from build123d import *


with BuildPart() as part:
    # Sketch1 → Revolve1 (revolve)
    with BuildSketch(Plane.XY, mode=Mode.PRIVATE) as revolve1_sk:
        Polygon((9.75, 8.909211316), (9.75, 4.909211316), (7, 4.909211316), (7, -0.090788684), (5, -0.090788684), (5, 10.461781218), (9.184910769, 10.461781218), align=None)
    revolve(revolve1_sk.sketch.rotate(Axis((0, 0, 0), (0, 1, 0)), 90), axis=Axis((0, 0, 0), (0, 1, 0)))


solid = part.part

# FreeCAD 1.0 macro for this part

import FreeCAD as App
import Part
import Sketcher
from FreeCAD import Vector
Q = App.Units.Quantity

doc = App.newDocument("Part")
body = doc.addObject("PartDesign::Body", "Body")

# Sketch on XY plane
sketch1 = doc.addObject("Sketcher::SketchObject", "Sketch")
body.addObject(sketch1)
sketch1.AttachmentSupport = (doc.XY_Plane, [""])
sketch1.MapMode = "FlatFace"
sketch1.addGeometry([
    Part.LineSegment(Vector(9.8, 4.9, 0), Vector(9.8, 8.9, 0)),  # 0
    Part.LineSegment(Vector(9.8, 8.9, 0), Vector(9.2, 10.5, 0)),  # 1
    Part.LineSegment(Vector(9.2, 10.5, 0), Vector(5, 10.5, 0)),  # 2
    Part.LineSegment(Vector(5, 10.5, 0), Vector(5, -0.1, 0)),  # 3
    Part.LineSegment(Vector(5, -0.1, 0), Vector(7, -0.1, 0)),  # 4
    Part.LineSegment(Vector(7, -0.1, 0), Vector(7, 4.9, 0)),  # 5
    Part.LineSegment(Vector(7, 4.9, 0), Vector(9.8, 4.9, 0)),  # 6
], False)
sketch1.addConstraint([
    Sketcher.Constraint("Coincident", 0, 2, 1, 1),
    Sketcher.Constraint("Coincident", 1, 2, 2, 1),
    Sketcher.Constraint("Coincident", 2, 2, 3, 1),
    Sketcher.Constraint("Coincident", 3, 2, 4, 1),
    Sketcher.Constraint("Coincident", 4, 2, 5, 1),
    Sketcher.Constraint("Coincident", 5, 2, 6, 1),
    Sketcher.Constraint("Coincident", 6, 2, 0, 1),
    Sketcher.Constraint("Vertical", 0),
    Sketcher.Constraint("Horizontal", 2),
    Sketcher.Constraint("Vertical", 3),
    Sketcher.Constraint("Horizontal", 4),
    Sketcher.Constraint("Vertical", 5),
    Sketcher.Constraint("Horizontal", 6),
    Sketcher.Constraint("DistanceX", 4, 1, 4, 2, Q("2 mm")),
    Sketcher.Constraint("DistanceY", 0, 1, 0, 2, Q("4 mm")),
    Sketcher.Constraint("DistanceY", 5, 1, 5, 2, Q("5 mm")),
    Sketcher.Constraint("Angle", 1, Q("110 deg")),
    Sketcher.Constraint("DistanceX", -1, 1, 2, 2, Q("5 mm")),
    Sketcher.Constraint("DistanceX", 6, 1, 6, 2, Q("2.75 mm")),
    Sketcher.Constraint("DistanceX", 2, 2, 2, 1, Q("4.184911 mm")),
    Sketcher.Constraint("DistanceY", -1, 1, 0, 2, Q("8.909211 mm")),
])
revolution = doc.addObject("PartDesign::Revolution", "Revolution")
body.addObject(revolution)
revolution.Profile = sketch1
revolution.ReferenceAxis = (sketch1, ["V_Axis"])
revolution.Angle = 360

doc.recompute()
